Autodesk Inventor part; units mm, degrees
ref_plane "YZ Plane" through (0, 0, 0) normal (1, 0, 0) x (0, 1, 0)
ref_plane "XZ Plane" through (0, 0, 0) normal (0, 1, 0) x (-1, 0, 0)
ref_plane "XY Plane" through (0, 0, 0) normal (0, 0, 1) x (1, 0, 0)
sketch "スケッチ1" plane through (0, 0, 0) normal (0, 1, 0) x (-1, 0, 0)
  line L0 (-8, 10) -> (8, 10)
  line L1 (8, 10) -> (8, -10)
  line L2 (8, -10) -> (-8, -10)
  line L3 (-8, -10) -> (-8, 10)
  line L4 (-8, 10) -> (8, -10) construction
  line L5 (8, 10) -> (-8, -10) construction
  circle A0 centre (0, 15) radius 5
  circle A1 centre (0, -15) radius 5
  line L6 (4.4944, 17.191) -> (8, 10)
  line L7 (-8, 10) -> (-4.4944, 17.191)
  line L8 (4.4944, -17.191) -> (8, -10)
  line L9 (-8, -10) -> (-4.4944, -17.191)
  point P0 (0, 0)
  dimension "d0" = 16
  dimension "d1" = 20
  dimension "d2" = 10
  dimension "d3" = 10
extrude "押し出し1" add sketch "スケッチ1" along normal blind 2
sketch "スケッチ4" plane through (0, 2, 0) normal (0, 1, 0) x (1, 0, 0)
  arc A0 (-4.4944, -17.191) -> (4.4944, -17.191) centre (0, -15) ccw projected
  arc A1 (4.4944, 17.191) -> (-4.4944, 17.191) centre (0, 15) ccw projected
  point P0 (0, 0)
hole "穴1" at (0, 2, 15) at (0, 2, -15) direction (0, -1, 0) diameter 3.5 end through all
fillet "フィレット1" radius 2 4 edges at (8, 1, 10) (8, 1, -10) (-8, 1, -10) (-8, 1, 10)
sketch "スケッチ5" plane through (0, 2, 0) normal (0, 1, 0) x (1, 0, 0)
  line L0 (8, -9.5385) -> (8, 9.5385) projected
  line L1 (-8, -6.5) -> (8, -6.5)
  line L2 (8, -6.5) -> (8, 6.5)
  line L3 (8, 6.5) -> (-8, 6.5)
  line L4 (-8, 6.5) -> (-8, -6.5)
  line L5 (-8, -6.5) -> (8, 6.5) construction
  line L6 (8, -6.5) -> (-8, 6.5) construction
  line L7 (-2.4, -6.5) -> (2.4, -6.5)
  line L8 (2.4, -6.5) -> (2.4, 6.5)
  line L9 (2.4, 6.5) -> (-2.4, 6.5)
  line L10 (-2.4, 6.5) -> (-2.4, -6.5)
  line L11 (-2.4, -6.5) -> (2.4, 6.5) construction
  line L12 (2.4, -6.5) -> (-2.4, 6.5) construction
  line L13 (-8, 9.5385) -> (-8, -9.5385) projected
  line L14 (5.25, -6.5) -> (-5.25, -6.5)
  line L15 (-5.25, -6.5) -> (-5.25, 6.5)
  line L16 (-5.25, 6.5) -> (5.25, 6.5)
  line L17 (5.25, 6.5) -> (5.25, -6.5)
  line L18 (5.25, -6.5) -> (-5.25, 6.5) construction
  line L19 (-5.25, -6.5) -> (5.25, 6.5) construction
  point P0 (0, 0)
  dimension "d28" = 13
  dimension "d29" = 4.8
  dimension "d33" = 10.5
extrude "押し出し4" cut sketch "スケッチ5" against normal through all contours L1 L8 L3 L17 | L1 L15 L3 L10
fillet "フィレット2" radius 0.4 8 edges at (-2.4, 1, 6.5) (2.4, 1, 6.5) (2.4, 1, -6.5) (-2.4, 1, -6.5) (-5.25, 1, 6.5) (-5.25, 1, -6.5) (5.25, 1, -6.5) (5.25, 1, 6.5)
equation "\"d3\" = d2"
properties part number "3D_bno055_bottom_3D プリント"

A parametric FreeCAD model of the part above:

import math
import FreeCAD as App
import Part
import Sketcher

V = App.Vector


def edges_at(feature, points):
    """Names of the edges that pass closest to the given points."""
    edges = feature.Shape.Edges
    near = lambda p: min(range(len(edges)), key=lambda i: edges[i].distToShape(Part.Vertex(*p))[0])
    return sorted({f"Edge{near(p) + 1}" for p in points})


def add_polygon(sketch, points):
    """Adds a closed chain of lines whose ends are joined by coincident constraints."""
    first, n = sketch.GeometryCount, len(points)
    for a, b in zip(points, points[1:] + points[:1]):
        sketch.addGeometry(Part.LineSegment(App.Vector(*a, 0), App.Vector(*b, 0)), False)
    for i in range(n):
        sketch.addConstraint(Sketcher.Constraint("Coincident", first + i, 2, first + (i + 1) % n, 1))

doc = App.newDocument("Part")
params = doc.addObject("Spreadsheet::Sheet", "Params")
for row, (alias, value) in enumerate([
    ("sketch1_radius", "5 mm"),
    ("sketch1_height", "20 mm"),
    ("sketch1_length", "8 mm"),
    ("pad1_length", "2 mm"),
    ("sketch2_diameter", "3.5 mm"),
    ("hole_diameter", "3.5 mm"),
    ("fillet_radius", "2 mm"),
    ("sketch3_height", "13 mm"),
    ("fillet2_radius", "0.4 mm"),
], start=1):
    params.set(f"A{row}", alias)
    params.set(f"B{row}", "=" + value)
    params.setAlias(f"B{row}", alias)

body = doc.addObject("PartDesign::Body", "Body")

# Sketch on XZ plane
sketch1 = doc.addObject("Sketcher::SketchObject", "Sketch")
body.addObject(sketch1)
sketch1.AttachmentSupport = (doc.XZ_Plane, [""])
sketch1.MapMode = "FlatFace"
sketch1.addGeometry([
    Part.LineSegment(V(4, 17, 0), V(8, 10, 0)),  # 0
    Part.LineSegment(V(8, 10, 0), V(8, -10, 0)),  # 1
    Part.LineSegment(V(8, -10, 0), V(4, -17, 0)),  # 2
    Part.ArcOfCircle(Part.Circle(V(0, -15, 0), V(0, 0, 1), 5), math.radians(-154), math.radians(-26)),  # 3
    Part.LineSegment(V(-4, -17, 0), V(-8, -10, 0)),  # 4
    Part.LineSegment(V(-8, -10, 0), V(-8, 10, 0)),  # 5
    Part.LineSegment(V(-8, 10, 0), V(-4, 17, 0)),  # 6
    Part.ArcOfCircle(Part.Circle(V(0, 15, 0), V(0, 0, 1), 5), math.radians(26), math.radians(154)),  # 7
], False)
sketch1.addConstraint([
    Sketcher.Constraint("Coincident", 0, 2, 1, 1),
    Sketcher.Constraint("Coincident", 1, 2, 2, 1),
    Sketcher.Constraint("Tangent", 2, 2, 3, 2),
    Sketcher.Constraint("Tangent", 3, 1, 4, 1),
    Sketcher.Constraint("Coincident", 4, 2, 5, 1),
    Sketcher.Constraint("Coincident", 5, 2, 6, 1),
    Sketcher.Constraint("Tangent", 6, 2, 7, 2),
    Sketcher.Constraint("Tangent", 7, 1, 0, 1),
    Sketcher.Constraint("Vertical", 1),
    Sketcher.Constraint("Vertical", 5),
    Sketcher.Constraint("Equal", 3, 7),
    Sketcher.Constraint("Symmetric", 3, 3, 7, 3, -1, 1),
    Sketcher.Constraint("Symmetric", 0, 2, 4, 2, -1, 1),
    Sketcher.Constraint("Symmetric", 2, 2, 3, 1, -2),
    Sketcher.Constraint("Parallel", 2, 6),
    Sketcher.Constraint("Radius", 3, 5.0),
    Sketcher.Constraint("DistanceY", 1, 2, 1, 1, 20.0),
    Sketcher.Constraint("DistanceX", 4, 2, 1, 2, 16.0),
    Sketcher.Constraint("Distance", 0, 8.0),
])
sketch1.setExpression("Constraints[15]", "Params.sketch1_radius")
sketch1.setExpression("Constraints[16]", "Params.sketch1_height")
sketch1.setExpression("Constraints[18]", "Params.sketch1_length")
pad1 = doc.addObject("PartDesign::Pad", "Pad")
body.addObject(pad1)
pad1.Profile = sketch1
pad1.setExpression("Length", "Params.pad1_length")
pad1.Reversed = True

# Sketch on XZ plane
sketch2 = doc.addObject("Sketcher::SketchObject", "Sketch001")
body.addObject(sketch2)
sketch2.AttachmentSupport = (doc.XZ_Plane, [""])
sketch2.MapMode = "FlatFace"
sketch2.AttachmentOffset = App.Placement(V(0, 0, -2), App.Rotation())
sketch2.addGeometry([
    Part.Circle(V(0, 15, 0), V(0, 0, 1), 1.8),
    Part.Circle(V(0, -15, 0), V(0, 0, 1), 1.8),
], False)
sketch2.addConstraint([
    Sketcher.Constraint("Equal", 0, 1),
    Sketcher.Constraint("Symmetric", 0, 3, 1, 3, -1, 1),
    Sketcher.Constraint("PointOnObject", 0, 3, -2),
    Sketcher.Constraint("Diameter", 0, 3.5),
    Sketcher.Constraint("DistanceY", -1, 1, 0, 3, 15.0),
])
sketch2.setExpression("Constraints[3]", "Params.sketch2_diameter")
doc.recompute()
hole = doc.addObject("PartDesign::Hole", "Hole")
body.addObject(hole)
hole.Profile = sketch2
hole.ThreadType = "None"
hole.setExpression("Diameter", "Params.hole_diameter")
hole.DepthType = "ThroughAll"
hole.Reversed = True
doc.recompute()

fillet = doc.addObject("PartDesign::Fillet", "Fillet")
body.addObject(fillet)
fillet.Base = (hole, edges_at(hole, [
    (8, 1, 10),
    (8, 1, -10),
    (-8, 1, -10),
    (-8, 1, 10),
]))
fillet.setExpression("Radius", "Params.fillet_radius")

# Sketch on XZ plane
sketch3 = doc.addObject("Sketcher::SketchObject", "Sketch002")
body.addObject(sketch3)
sketch3.AttachmentSupport = (doc.XZ_Plane, [""])
sketch3.MapMode = "FlatFace"
sketch3.AttachmentOffset = App.Placement(V(0, 0, -2), App.Rotation())
add_polygon(sketch3, [(2.4, 6.5), (5.2, 6.5), (5.2, -6.5), (2.4, -6.5)])  # lines 0-3
add_polygon(sketch3, [(-5.2, 6.5), (-2.4, 6.5), (-2.4, -6.5), (-5.2, -6.5)])  # lines 4-7
sketch3.addConstraint([
    Sketcher.Constraint("Horizontal", 0),
    Sketcher.Constraint("Vertical", 1),
    Sketcher.Constraint("Horizontal", 2),
    Sketcher.Constraint("Vertical", 3),
    Sketcher.Constraint("Horizontal", 4),
    Sketcher.Constraint("Vertical", 5),
    Sketcher.Constraint("Horizontal", 6),
    Sketcher.Constraint("Vertical", 7),
    Sketcher.Constraint("Symmetric", 2, 2, 4, 2, -1, 1),
    Sketcher.Constraint("Symmetric", 0, 2, 6, 2, -1, 1),
    Sketcher.Constraint("Horizontal", 3, 2, 4, 2),
    Sketcher.Constraint("DistanceY", 1, 2, 1, 1, 13.0),
    Sketcher.Constraint("DistanceX", 4, 2, 3, 2, 4.8),
    Sketcher.Constraint("DistanceX", 6, 2, 1, 2, 10.5),
])
sketch3.setExpression("Constraints[19]", "Params.sketch3_height")
pocket1 = doc.addObject("PartDesign::Pocket", "Pocket")
body.addObject(pocket1)
pocket1.Profile = sketch3
pocket1.Type = "ThroughAll"
pocket1.Reversed = True
doc.recompute()

fillet2 = doc.addObject("PartDesign::Fillet", "Fillet001")
body.addObject(fillet2)
fillet2.Base = (pocket1, edges_at(pocket1, [
    (-2.4, 1, 6.5),
    (2.4, 1, 6.5),
    (2.4, 1, -6.5),
    (-2.4, 1, -6.5),
    (-5.25, 1, 6.5),
    (-5.25, 1, -6.5),
    (5.25, 1, -6.5),
    (5.25, 1, 6.5),
]))
fillet2.setExpression("Radius", "Params.fillet2_radius")

doc.recompute()
